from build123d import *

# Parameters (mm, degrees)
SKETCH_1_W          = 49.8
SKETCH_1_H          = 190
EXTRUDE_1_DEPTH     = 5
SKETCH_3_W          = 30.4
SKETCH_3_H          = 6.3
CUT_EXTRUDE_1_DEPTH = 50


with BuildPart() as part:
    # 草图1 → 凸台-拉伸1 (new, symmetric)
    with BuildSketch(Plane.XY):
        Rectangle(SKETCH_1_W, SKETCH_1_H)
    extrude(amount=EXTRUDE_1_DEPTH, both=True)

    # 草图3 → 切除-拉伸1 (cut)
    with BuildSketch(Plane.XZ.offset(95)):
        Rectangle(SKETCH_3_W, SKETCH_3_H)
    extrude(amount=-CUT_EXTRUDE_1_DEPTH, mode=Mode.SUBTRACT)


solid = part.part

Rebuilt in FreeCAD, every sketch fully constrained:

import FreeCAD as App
import Part
import Sketcher
from FreeCAD import Vector
Q = App.Units.Quantity

doc = App.newDocument("Part")
body = doc.addObject("PartDesign::Body", "Body")

sketch1 = body.newObject("Sketcher::SketchObject", "Sketch")
sketch1.AttachmentSupport = (doc.getObject("XY_Plane"), [""])
sketch1.MapMode = "FlatFace"
sketch1.addGeometry(Part.LineSegment(Vector(-24.9, 95, 0), Vector(-24.9, -95, 0)), False)
sketch1.addGeometry(Part.LineSegment(Vector(-24.9, -95, 0), Vector(24.9, -95, 0)), False)
sketch1.addGeometry(Part.LineSegment(Vector(24.9, -95, 0), Vector(24.9, 95, 0)), False)
sketch1.addGeometry(Part.LineSegment(Vector(24.9, 95, 0), Vector(-24.9, 95, 0)), False)
sketch1.addConstraint(Sketcher.Constraint("Coincident", 0, 2, 1, 1))
sketch1.addConstraint(Sketcher.Constraint("Coincident", 1, 2, 2, 1))
sketch1.addConstraint(Sketcher.Constraint("Coincident", 2, 2, 3, 1))
sketch1.addConstraint(Sketcher.Constraint("Coincident", 3, 2, 0, 1))
sketch1.addConstraint(Sketcher.Constraint("Vertical", 0))
sketch1.addConstraint(Sketcher.Constraint("Horizontal", 1))
sketch1.addConstraint(Sketcher.Constraint("Vertical", 2))
sketch1.addConstraint(Sketcher.Constraint("Horizontal", 3))
sketch1.addConstraint(Sketcher.Constraint("Symmetric", 0, 2, 2, 2, -1, 1))
sketch1.addConstraint(Sketcher.Constraint("DistanceY", 0, 2, 0, 1, Q("190 mm")))
sketch1.addConstraint(Sketcher.Constraint("DistanceX", 1, 1, 1, 2, Q("49.8 mm")))
pad1 = body.newObject("PartDesign::Pad", "Pad")
pad1.Profile = sketch1
pad1.Length = 10
pad1.Midplane = True

sketch2 = body.newObject("Sketcher::SketchObject", "Sketch001")
sketch2.AttachmentSupport = (doc.getObject("XZ_Plane"), [""])
sketch2.MapMode = "FlatFace"
sketch2.AttachmentOffset = App.Placement(Vector(0, 0, 95), App.Rotation())
sketch2.addGeometry(Part.LineSegment(Vector(-15.2, 3.15, 0), Vector(-15.2, -3.15, 0)), False)
sketch2.addGeometry(Part.LineSegment(Vector(-15.2, -3.15, 0), Vector(15.2, -3.15, 0)), False)
sketch2.addGeometry(Part.LineSegment(Vector(15.2, -3.15, 0), Vector(15.2, 3.15, 0)), False)
sketch2.addGeometry(Part.LineSegment(Vector(15.2, 3.15, 0), Vector(-15.2, 3.15, 0)), False)
sketch2.addConstraint(Sketcher.Constraint("Coincident", 0, 2, 1, 1))
sketch2.addConstraint(Sketcher.Constraint("Coincident", 1, 2, 2, 1))
sketch2.addConstraint(Sketcher.Constraint("Coincident", 2, 2, 3, 1))
sketch2.addConstraint(Sketcher.Constraint("Coincident", 3, 2, 0, 1))
sketch2.addConstraint(Sketcher.Constraint("Vertical", 0))
sketch2.addConstraint(Sketcher.Constraint("Horizontal", 1))
sketch2.addConstraint(Sketcher.Constraint("Vertical", 2))
sketch2.addConstraint(Sketcher.Constraint("Horizontal", 3))
sketch2.addConstraint(Sketcher.Constraint("Symmetric", 0, 2, 2, 2, -1, 1))
sketch2.addConstraint(Sketcher.Constraint("DistanceX", 1, 1, 1, 2, Q("30.4 mm")))
sketch2.addConstraint(Sketcher.Constraint("DistanceY", 0, 2, 0, 1, Q("6.3 mm")))
pocket1 = body.newObject("PartDesign::Pocket", "Pocket")
pocket1.Profile = sketch2
pocket1.Length = 50

doc.recompute()
